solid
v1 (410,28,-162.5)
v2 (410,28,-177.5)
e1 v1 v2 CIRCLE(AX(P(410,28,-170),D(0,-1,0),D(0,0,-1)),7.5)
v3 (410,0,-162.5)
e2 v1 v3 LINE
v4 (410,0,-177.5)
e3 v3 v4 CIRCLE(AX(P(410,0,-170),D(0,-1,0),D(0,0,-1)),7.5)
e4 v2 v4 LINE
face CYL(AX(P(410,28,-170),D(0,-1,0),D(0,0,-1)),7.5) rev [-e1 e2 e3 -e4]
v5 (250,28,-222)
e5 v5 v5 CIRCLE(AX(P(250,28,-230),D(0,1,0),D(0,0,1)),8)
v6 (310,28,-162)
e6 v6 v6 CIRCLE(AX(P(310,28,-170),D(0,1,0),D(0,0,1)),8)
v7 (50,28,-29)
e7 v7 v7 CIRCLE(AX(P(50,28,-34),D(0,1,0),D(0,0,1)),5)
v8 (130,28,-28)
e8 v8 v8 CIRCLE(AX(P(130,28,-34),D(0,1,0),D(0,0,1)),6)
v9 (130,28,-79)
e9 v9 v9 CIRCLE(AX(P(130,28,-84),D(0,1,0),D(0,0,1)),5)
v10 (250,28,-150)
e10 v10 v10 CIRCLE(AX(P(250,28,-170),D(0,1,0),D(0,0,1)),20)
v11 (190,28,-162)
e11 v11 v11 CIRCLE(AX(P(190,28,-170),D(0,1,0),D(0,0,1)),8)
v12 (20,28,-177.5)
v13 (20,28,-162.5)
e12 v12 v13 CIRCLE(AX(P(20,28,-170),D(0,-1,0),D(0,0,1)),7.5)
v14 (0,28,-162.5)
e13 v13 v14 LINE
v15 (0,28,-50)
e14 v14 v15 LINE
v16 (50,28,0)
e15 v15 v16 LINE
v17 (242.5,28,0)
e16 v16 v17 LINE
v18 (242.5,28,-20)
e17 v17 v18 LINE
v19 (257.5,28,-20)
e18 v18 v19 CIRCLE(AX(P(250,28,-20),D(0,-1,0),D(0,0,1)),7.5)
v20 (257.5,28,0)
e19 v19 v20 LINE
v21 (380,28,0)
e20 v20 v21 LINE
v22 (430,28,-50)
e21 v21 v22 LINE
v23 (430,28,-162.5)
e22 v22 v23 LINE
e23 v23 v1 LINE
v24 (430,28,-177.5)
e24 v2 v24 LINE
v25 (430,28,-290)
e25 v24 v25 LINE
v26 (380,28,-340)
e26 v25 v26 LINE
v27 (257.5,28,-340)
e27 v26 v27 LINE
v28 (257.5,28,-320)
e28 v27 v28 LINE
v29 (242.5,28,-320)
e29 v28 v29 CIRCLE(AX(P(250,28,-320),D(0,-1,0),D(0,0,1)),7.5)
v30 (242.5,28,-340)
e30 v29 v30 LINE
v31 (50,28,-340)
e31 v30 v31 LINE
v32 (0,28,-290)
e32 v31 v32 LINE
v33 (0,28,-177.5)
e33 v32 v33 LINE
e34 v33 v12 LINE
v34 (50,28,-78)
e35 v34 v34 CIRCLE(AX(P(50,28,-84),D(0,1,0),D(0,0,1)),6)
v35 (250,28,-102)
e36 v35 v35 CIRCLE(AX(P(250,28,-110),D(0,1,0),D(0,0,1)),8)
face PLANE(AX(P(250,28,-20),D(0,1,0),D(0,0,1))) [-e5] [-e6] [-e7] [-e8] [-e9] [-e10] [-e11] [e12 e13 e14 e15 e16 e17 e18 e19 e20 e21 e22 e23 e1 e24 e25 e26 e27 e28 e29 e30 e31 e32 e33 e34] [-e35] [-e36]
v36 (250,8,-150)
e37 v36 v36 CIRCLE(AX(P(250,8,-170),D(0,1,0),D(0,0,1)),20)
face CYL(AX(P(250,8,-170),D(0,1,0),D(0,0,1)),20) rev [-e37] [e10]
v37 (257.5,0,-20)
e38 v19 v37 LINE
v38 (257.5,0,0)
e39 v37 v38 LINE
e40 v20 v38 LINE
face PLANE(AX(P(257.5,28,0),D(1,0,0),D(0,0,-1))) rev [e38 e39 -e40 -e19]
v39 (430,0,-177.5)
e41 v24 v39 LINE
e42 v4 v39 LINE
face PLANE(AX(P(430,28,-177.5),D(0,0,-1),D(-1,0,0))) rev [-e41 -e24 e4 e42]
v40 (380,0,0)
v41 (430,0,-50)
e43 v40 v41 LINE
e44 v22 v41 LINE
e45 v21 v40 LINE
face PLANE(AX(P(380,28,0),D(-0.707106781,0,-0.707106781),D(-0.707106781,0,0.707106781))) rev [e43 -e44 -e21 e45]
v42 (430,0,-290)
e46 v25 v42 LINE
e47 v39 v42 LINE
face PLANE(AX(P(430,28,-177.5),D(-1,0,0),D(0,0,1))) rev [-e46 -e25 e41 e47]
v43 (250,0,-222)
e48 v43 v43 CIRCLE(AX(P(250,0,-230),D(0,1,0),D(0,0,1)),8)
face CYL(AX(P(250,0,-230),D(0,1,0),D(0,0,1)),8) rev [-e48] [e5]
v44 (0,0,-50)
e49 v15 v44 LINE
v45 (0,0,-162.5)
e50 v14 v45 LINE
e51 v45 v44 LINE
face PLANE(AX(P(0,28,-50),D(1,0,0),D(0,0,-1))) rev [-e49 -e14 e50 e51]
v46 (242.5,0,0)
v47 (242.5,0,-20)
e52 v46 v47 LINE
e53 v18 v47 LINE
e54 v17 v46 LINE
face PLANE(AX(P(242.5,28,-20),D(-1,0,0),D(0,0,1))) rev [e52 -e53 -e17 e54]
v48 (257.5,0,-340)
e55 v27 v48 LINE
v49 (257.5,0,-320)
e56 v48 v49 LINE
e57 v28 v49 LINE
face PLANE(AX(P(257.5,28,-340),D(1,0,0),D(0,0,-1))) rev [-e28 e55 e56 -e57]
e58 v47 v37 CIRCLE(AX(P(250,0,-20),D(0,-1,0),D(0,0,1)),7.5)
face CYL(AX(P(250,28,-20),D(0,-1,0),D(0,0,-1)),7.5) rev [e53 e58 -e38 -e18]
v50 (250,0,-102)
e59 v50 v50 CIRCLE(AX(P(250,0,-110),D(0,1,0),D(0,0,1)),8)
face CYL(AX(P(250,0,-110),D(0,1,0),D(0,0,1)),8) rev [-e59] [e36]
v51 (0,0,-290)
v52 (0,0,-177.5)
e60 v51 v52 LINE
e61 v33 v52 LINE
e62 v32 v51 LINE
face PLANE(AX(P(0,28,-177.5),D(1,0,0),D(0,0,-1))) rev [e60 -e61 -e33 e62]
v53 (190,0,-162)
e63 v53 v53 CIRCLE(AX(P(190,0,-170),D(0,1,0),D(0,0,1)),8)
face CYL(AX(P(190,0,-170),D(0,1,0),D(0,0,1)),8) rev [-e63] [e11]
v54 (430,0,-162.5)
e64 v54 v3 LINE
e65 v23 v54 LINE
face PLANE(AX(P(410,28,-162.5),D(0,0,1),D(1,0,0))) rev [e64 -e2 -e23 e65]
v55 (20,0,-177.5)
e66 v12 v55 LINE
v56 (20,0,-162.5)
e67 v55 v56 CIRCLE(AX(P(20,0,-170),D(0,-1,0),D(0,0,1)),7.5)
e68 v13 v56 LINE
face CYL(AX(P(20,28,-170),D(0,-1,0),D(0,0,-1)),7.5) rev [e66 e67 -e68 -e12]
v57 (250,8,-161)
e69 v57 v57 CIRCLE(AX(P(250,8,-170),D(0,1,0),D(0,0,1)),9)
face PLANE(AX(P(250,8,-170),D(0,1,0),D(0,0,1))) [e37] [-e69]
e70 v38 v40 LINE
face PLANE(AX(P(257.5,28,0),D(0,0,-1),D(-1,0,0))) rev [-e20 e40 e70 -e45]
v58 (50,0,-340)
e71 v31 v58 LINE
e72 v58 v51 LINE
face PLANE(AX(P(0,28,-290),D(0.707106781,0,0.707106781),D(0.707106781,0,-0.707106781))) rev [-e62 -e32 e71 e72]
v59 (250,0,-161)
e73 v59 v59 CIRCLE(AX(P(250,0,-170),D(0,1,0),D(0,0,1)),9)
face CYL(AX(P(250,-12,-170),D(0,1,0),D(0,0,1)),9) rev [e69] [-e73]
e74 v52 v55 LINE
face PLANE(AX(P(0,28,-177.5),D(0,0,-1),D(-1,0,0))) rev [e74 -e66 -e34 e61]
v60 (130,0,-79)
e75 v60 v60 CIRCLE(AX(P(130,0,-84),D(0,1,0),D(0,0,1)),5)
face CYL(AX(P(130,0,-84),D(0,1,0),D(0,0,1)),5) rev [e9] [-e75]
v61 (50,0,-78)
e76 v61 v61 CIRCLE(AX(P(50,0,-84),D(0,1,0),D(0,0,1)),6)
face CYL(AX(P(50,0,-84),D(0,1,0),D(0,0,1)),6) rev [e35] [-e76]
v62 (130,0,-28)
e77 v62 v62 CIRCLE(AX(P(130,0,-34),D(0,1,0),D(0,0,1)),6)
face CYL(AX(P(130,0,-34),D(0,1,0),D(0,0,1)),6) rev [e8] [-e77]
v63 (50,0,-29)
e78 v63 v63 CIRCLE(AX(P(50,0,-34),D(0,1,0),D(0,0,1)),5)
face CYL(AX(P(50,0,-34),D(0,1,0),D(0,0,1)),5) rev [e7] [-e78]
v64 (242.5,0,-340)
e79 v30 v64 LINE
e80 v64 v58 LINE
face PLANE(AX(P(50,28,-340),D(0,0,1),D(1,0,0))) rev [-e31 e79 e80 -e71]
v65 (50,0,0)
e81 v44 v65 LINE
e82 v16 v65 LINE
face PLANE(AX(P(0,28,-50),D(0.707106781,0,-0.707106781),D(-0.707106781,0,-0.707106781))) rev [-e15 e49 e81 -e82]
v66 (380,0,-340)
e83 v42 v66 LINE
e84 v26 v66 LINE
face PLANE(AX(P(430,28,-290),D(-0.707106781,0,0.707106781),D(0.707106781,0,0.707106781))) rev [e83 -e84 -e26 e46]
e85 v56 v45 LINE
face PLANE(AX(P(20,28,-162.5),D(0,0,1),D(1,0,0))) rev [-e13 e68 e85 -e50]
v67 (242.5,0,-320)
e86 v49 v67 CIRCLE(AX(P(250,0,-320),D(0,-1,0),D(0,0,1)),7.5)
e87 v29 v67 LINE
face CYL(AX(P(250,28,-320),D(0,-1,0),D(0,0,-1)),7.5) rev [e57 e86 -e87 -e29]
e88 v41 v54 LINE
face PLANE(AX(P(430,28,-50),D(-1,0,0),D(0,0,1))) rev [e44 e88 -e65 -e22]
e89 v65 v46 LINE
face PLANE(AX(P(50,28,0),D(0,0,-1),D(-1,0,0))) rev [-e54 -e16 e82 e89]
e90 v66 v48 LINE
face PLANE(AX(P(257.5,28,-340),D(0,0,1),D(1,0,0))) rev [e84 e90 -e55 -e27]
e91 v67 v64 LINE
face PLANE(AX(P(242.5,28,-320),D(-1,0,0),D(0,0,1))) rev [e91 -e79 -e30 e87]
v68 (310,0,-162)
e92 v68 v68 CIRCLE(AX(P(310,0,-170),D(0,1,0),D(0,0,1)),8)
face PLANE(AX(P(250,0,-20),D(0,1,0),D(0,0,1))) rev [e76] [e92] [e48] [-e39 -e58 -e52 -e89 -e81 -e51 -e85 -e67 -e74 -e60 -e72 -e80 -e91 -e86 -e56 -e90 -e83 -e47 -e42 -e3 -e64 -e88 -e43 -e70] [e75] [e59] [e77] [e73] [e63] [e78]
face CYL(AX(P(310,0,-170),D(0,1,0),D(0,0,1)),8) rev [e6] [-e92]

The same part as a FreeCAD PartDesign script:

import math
import FreeCAD as App
import Part
import Sketcher
from FreeCAD import Vector
Q = App.Units.Quantity

doc = App.newDocument("Part")
params = doc.addObject("Spreadsheet::Sheet", "Params")
for row, (alias, value) in enumerate([
    ("sketch1_radius", "7.5 mm"),
    ("sketch1_width", "20 mm"),
    ("sketch1_width2", "192.5 mm"),
    ("sketch1_width3", "122.5 mm"),
    ("sketch1_height", "112.5 mm"),
    ("pad1_length", "28 mm"),
    ("sketch2_diameter", "16 mm"),
    ("pocket1_length", "28 mm"),
    ("sketch3_diameter", "12 mm"),
    ("sketch3_diameter2", "10 mm"),
    ("pocket2_length", "28 mm"),
    ("sketch4_diameter", "40 mm"),
    ("pocket3_length", "20 mm"),
    ("sketch5_diameter", "18 mm"),
    ("pocket4_length", "20 mm"),
], start=1):
    params.set(f"A{row}", alias)
    params.set(f"B{row}", "=" + value)
    params.setAlias(f"B{row}", alias)

body = doc.addObject("PartDesign::Body", "Body")

sketch1 = doc.addObject("Sketcher::SketchObject", "Sketch")
body.addObject(sketch1)
sketch1.AttachmentSupport = (doc.XZ_Plane, [""])
sketch1.MapMode = "FlatFace"
sketch1.addGeometry(Part.LineSegment(Vector(0, -50, 0), Vector(50, 0, 0)), False)
sketch1.addGeometry(Part.LineSegment(Vector(50, 0, 0), Vector(242, 0, 0)), False)
sketch1.addGeometry(Part.LineSegment(Vector(242, 0, 0), Vector(242, -20, 0)), False)
sketch1.addGeometry(Part.ArcOfCircle(Part.Circle(Vector(250, -20, 0), Vector(0, 0, 1), 8), math.radians(180), math.radians(360)), False)
sketch1.addGeometry(Part.LineSegment(Vector(258, -20, 0), Vector(258, 0, 0)), False)
sketch1.addGeometry(Part.LineSegment(Vector(258, 0, 0), Vector(380, 0, 0)), False)
sketch1.addGeometry(Part.LineSegment(Vector(380, 0, 0), Vector(430, -50, 0)), False)
sketch1.addGeometry(Part.LineSegment(Vector(430, -50, 0), Vector(430, -162, 0)), False)
sketch1.addGeometry(Part.LineSegment(Vector(430, -162, 0), Vector(410, -162, 0)), False)
sketch1.addGeometry(Part.ArcOfCircle(Part.Circle(Vector(410, -170, 0), Vector(0, 0, 1), 8), math.radians(90), math.radians(270)), False)
sketch1.addGeometry(Part.LineSegment(Vector(410, -178, 0), Vector(430, -178, 0)), False)
sketch1.addGeometry(Part.LineSegment(Vector(430, -178, 0), Vector(430, -290, 0)), False)
sketch1.addGeometry(Part.LineSegment(Vector(430, -290, 0), Vector(380, -340, 0)), False)
sketch1.addGeometry(Part.LineSegment(Vector(380, -340, 0), Vector(258, -340, 0)), False)
sketch1.addGeometry(Part.LineSegment(Vector(258, -340, 0), Vector(258, -320, 0)), False)
sketch1.addGeometry(Part.ArcOfCircle(Part.Circle(Vector(250, -320, 0), Vector(0, 0, 1), 8), math.radians(0), math.radians(180)), False)
sketch1.addGeometry(Part.LineSegment(Vector(242, -320, 0), Vector(242, -340, 0)), False)
sketch1.addGeometry(Part.LineSegment(Vector(242, -340, 0), Vector(50, -340, 0)), False)
sketch1.addGeometry(Part.LineSegment(Vector(50, -340, 0), Vector(0, -290, 0)), False)
sketch1.addGeometry(Part.LineSegment(Vector(0, -290, 0), Vector(0, -178, 0)), False)
sketch1.addGeometry(Part.LineSegment(Vector(0, -178, 0), Vector(20, -178, 0)), False)
sketch1.addGeometry(Part.ArcOfCircle(Part.Circle(Vector(20, -170, 0), Vector(0, 0, 1), 8), math.radians(-90), math.radians(90)), False)
sketch1.addGeometry(Part.LineSegment(Vector(20, -162, 0), Vector(0, -162, 0)), False)
sketch1.addGeometry(Part.LineSegment(Vector(0, -162, 0), Vector(0, -50, 0)), False)
sketch1.addConstraint(Sketcher.Constraint("Coincident", 0, 2, 1, 1))
sketch1.addConstraint(Sketcher.Constraint("Coincident", 1, 2, 2, 1))
sketch1.addConstraint(Sketcher.Constraint("Tangent", 2, 2, 3, 1))
sketch1.addConstraint(Sketcher.Constraint("Tangent", 3, 2, 4, 1))
sketch1.addConstraint(Sketcher.Constraint("Coincident", 4, 2, 5, 1))
sketch1.addConstraint(Sketcher.Constraint("Coincident", 5, 2, 6, 1))
sketch1.addConstraint(Sketcher.Constraint("Coincident", 6, 2, 7, 1))
sketch1.addConstraint(Sketcher.Constraint("Coincident", 7, 2, 8, 1))
sketch1.addConstraint(Sketcher.Constraint("Tangent", 8, 2, 9, 1))
sketch1.addConstraint(Sketcher.Constraint("Tangent", 9, 2, 10, 1))
sketch1.addConstraint(Sketcher.Constraint("Coincident", 10, 2, 11, 1))
sketch1.addConstraint(Sketcher.Constraint("Coincident", 11, 2, 12, 1))
sketch1.addConstraint(Sketcher.Constraint("Coincident", 12, 2, 13, 1))
sketch1.addConstraint(Sketcher.Constraint("Coincident", 13, 2, 14, 1))
sketch1.addConstraint(Sketcher.Constraint("Tangent", 14, 2, 15, 1))
sketch1.addConstraint(Sketcher.Constraint("Tangent", 15, 2, 16, 1))
sketch1.addConstraint(Sketcher.Constraint("Coincident", 16, 2, 17, 1))
sketch1.addConstraint(Sketcher.Constraint("Coincident", 17, 2, 18, 1))
sketch1.addConstraint(Sketcher.Constraint("Coincident", 18, 2, 19, 1))
sketch1.addConstraint(Sketcher.Constraint("Coincident", 19, 2, 20, 1))
sketch1.addConstraint(Sketcher.Constraint("Tangent", 20, 2, 21, 1))
sketch1.addConstraint(Sketcher.Constraint("Tangent", 21, 2, 22, 1))
sketch1.addConstraint(Sketcher.Constraint("Coincident", 22, 2, 23, 1))
sketch1.addConstraint(Sketcher.Constraint("Coincident", 23, 2, 0, 1))
sketch1.addConstraint(Sketcher.Constraint("Horizontal", 1))
sketch1.addConstraint(Sketcher.Constraint("Vertical", 2))
sketch1.addConstraint(Sketcher.Constraint("Vertical", 4))
sketch1.addConstraint(Sketcher.Constraint("Horizontal", 5))
sketch1.addConstraint(Sketcher.Constraint("Vertical", 7))
sketch1.addConstraint(Sketcher.Constraint("Horizontal", 8))
sketch1.addConstraint(Sketcher.Constraint("Horizontal", 10))
sketch1.addConstraint(Sketcher.Constraint("Vertical", 11))
sketch1.addConstraint(Sketcher.Constraint("Horizontal", 13))
sketch1.addConstraint(Sketcher.Constraint("Vertical", 14))
sketch1.addConstraint(Sketcher.Constraint("Vertical", 16))
sketch1.addConstraint(Sketcher.Constraint("Horizontal", 17))
sketch1.addConstraint(Sketcher.Constraint("Vertical", 19))
sketch1.addConstraint(Sketcher.Constraint("Horizontal", 20))
sketch1.addConstraint(Sketcher.Constraint("Horizontal", 22))
sketch1.addConstraint(Sketcher.Constraint("Vertical", 23))
sketch1.addConstraint(Sketcher.Constraint("Equal", 3, 9))
sketch1.addConstraint(Sketcher.Constraint("Equal", 9, 15))
sketch1.addConstraint(Sketcher.Constraint("Equal", 15, 21))
sketch1.addConstraint(Sketcher.Constraint("PointOnObject", 0, 2, -1))
sketch1.addConstraint(Sketcher.Constraint("PointOnObject", 4, 2, -1))
sketch1.addConstraint(Sketcher.Constraint("PointOnObject", 18, 2, -2))
sketch1.addConstraint(Sketcher.Constraint("PointOnObject", 22, 2, -2))
sketch1.addConstraint(Sketcher.Constraint("Perpendicular", 0, 6))
sketch1.addConstraint(Sketcher.Constraint("Perpendicular", 6, 12))
sketch1.addConstraint(Sketcher.Constraint("Perpendicular", 12, 18))
sketch1.addConstraint(Sketcher.Constraint("Horizontal", 9, 3, 21, 3))
sketch1.addConstraint(Sketcher.Constraint("Horizontal", 13, 2, 16, 2))
sketch1.addConstraint(Sketcher.Constraint("Horizontal", 11, 2, 18, 2))
sketch1.addConstraint(Sketcher.Constraint("Horizontal", 6, 2, 23, 2))
sketch1.addConstraint(Sketcher.Constraint("Vertical", 3, 3, 15, 3))
sketch1.addConstraint(Sketcher.Constraint("Vertical", 7, 2, 10, 2))
sketch1.addConstraint(Sketcher.Constraint("Vertical", 5, 2, 12, 2))
sketch1.addConstraint(Sketcher.Constraint("Vertical", 0, 2, 17, 2))
sketch1.addConstraint(Sketcher.Constraint("Equal", 10, 20))
sketch1.addConstraint(Sketcher.Constraint("Equal", 22, 2))
sketch1.addConstraint(Sketcher.Constraint("Equal", 7, 11))
sketch1.addConstraint(Sketcher.Constraint("Equal", 4, 14))
sketch1.addConstraint(Sketcher.Constraint("Radius", 3, Q("7.5 mm")))
sketch1.addConstraint(Sketcher.Constraint("DistanceX", 8, 2, 8, 1, Q("20 mm")))
sketch1.addConstraint(Sketcher.Constraint("DistanceX", 1, 1, 1, 2, Q("192.5 mm")))
sketch1.addConstraint(Sketcher.Constraint("DistanceX", 5, 1, 5, 2, Q("122.5 mm")))
sketch1.addConstraint(Sketcher.Constraint("DistanceY", 7, 2, 7, 1, Q("112.5 mm")))
sketch1.addConstraint(Sketcher.Constraint("DistanceX", -1, 1, 3, 3, Q("250 mm")))
sketch1.setExpression("Constraints[62]", "Params.sketch1_radius")
sketch1.setExpression("Constraints[63]", "Params.sketch1_width")
sketch1.setExpression("Constraints[64]", "Params.sketch1_width2")
sketch1.setExpression("Constraints[65]", "Params.sketch1_width3")
sketch1.setExpression("Constraints[66]", "Params.sketch1_height")
pad1 = doc.addObject("PartDesign::Pad", "Pad")
body.addObject(pad1)
pad1.Profile = sketch1
pad1.setExpression("Length", "Params.pad1_length")
pad1.Reversed = True

sketch2 = doc.addObject("Sketcher::SketchObject", "Sketch001")
body.addObject(sketch2)
sketch2.AttachmentSupport = (doc.XZ_Plane, [""])
sketch2.MapMode = "FlatFace"
sketch2.AttachmentOffset = App.Placement(Vector(0, 0, -28), App.Rotation())
sketch2.addGeometry(Part.Circle(Vector(250, -230, 0), Vector(0, 0, 1), 8), False)
sketch2.addGeometry(Part.Circle(Vector(190, -170, 0), Vector(0, 0, 1), 8), False)
sketch2.addGeometry(Part.Circle(Vector(250, -110, 0), Vector(0, 0, 1), 8), False)
sketch2.addGeometry(Part.Circle(Vector(310, -170, 0), Vector(0, 0, 1), 8), False)
sketch2.addConstraint(Sketcher.Constraint("Equal", 0, 1))
sketch2.addConstraint(Sketcher.Constraint("Equal", 1, 2))
sketch2.addConstraint(Sketcher.Constraint("Equal", 2, 3))
sketch2.addConstraint(Sketcher.Constraint("Horizontal", 1, 3, 3, 3))
sketch2.addConstraint(Sketcher.Constraint("Vertical", 0, 3, 2, 3))
sketch2.addConstraint(Sketcher.Constraint("Diameter", 0, Q("16 mm")))
sketch2.addConstraint(Sketcher.Constraint("DistanceX", -1, 1, 0, 3, Q("250 mm")))
sketch2.addConstraint(Sketcher.Constraint("DistanceY", 0, 3, -1, 1, Q("230 mm")))
sketch2.addConstraint(Sketcher.Constraint("DistanceX", -1, 1, 1, 3, Q("190 mm")))
sketch2.addConstraint(Sketcher.Constraint("DistanceY", 1, 3, -1, 1, Q("170 mm")))
sketch2.addConstraint(Sketcher.Constraint("DistanceY", 2, 3, -1, 1, Q("110 mm")))
sketch2.addConstraint(Sketcher.Constraint("DistanceX", -1, 1, 3, 3, Q("310 mm")))
sketch2.setExpression("Constraints[5]", "Params.sketch2_diameter")
pocket1 = doc.addObject("PartDesign::Pocket", "Pocket")
body.addObject(pocket1)
pocket1.Profile = sketch2
pocket1.setExpression("Length", "Params.pocket1_length")
pocket1.Reversed = True

sketch3 = doc.addObject("Sketcher::SketchObject", "Sketch002")
body.addObject(sketch3)
sketch3.AttachmentSupport = (doc.XZ_Plane, [""])
sketch3.MapMode = "FlatFace"
sketch3.AttachmentOffset = App.Placement(Vector(0, 0, -28), App.Rotation())
sketch3.addGeometry(Part.Circle(Vector(50, -84, 0), Vector(0, 0, 1), 6), False)
sketch3.addGeometry(Part.Circle(Vector(130, -84, 0), Vector(0, 0, 1), 5), False)
sketch3.addGeometry(Part.Circle(Vector(50, -34, 0), Vector(0, 0, 1), 5), False)
sketch3.addGeometry(Part.Circle(Vector(130, -34, 0), Vector(0, 0, 1), 6), False)
sketch3.addConstraint(Sketcher.Constraint("Equal", 1, 2))
sketch3.addConstraint(Sketcher.Constraint("Equal", 0, 3))
sketch3.addConstraint(Sketcher.Constraint("Horizontal", 0, 3, 1, 3))
sketch3.addConstraint(Sketcher.Constraint("Horizontal", 2, 3, 3, 3))
sketch3.addConstraint(Sketcher.Constraint("Vertical", 0, 3, 2, 3))
sketch3.addConstraint(Sketcher.Constraint("Vertical", 1, 3, 3, 3))
sketch3.addConstraint(Sketcher.Constraint("Diameter", 0, Q("12 mm")))
sketch3.addConstraint(Sketcher.Constraint("Diameter", 1, Q("10 mm")))
sketch3.addConstraint(Sketcher.Constraint("DistanceX", -1, 1, 0, 3, Q("50 mm")))
sketch3.addConstraint(Sketcher.Constraint("DistanceY", 0, 3, -1, 1, Q("84 mm")))
sketch3.addConstraint(Sketcher.Constraint("DistanceX", -1, 1, 1, 3, Q("130 mm")))
sketch3.addConstraint(Sketcher.Constraint("DistanceY", 2, 3, -1, 1, Q("34 mm")))
sketch3.setExpression("Constraints[6]", "Params.sketch3_diameter")
sketch3.setExpression("Constraints[7]", "Params.sketch3_diameter2")
pocket2 = doc.addObject("PartDesign::Pocket", "Pocket001")
body.addObject(pocket2)
pocket2.Profile = sketch3
pocket2.setExpression("Length", "Params.pocket2_length")
pocket2.Reversed = True

sketch4 = doc.addObject("Sketcher::SketchObject", "Sketch003")
body.addObject(sketch4)
sketch4.AttachmentSupport = (doc.XZ_Plane, [""])
sketch4.MapMode = "FlatFace"
sketch4.AttachmentOffset = App.Placement(Vector(0, 0, -28), App.Rotation())
sketch4.addGeometry(Part.Circle(Vector(250, -170, 0), Vector(0, 0, 1), 20), False)
sketch4.addConstraint(Sketcher.Constraint("Diameter", 0, Q("40 mm")))
sketch4.addConstraint(Sketcher.Constraint("DistanceX", -1, 1, 0, 3, Q("250 mm")))
sketch4.addConstraint(Sketcher.Constraint("DistanceY", 0, 3, -1, 1, Q("170 mm")))
sketch4.setExpression("Constraints[0]", "Params.sketch4_diameter")
pocket3 = doc.addObject("PartDesign::Pocket", "Pocket002")
body.addObject(pocket3)
pocket3.Profile = sketch4
pocket3.setExpression("Length", "Params.pocket3_length")
pocket3.Reversed = True

sketch5 = doc.addObject("Sketcher::SketchObject", "Sketch004")
body.addObject(sketch5)
sketch5.AttachmentSupport = (doc.XZ_Plane, [""])
sketch5.MapMode = "FlatFace"
sketch5.AttachmentOffset = App.Placement(Vector(0, 0, -8), App.Rotation())
sketch5.addGeometry(Part.Circle(Vector(250, -170, 0), Vector(0, 0, 1), 9), False)
sketch5.addConstraint(Sketcher.Constraint("Diameter", 0, Q("18 mm")))
sketch5.addConstraint(Sketcher.Constraint("DistanceX", -1, 1, 0, 3, Q("250 mm")))
sketch5.addConstraint(Sketcher.Constraint("DistanceY", 0, 3, -1, 1, Q("170 mm")))
sketch5.setExpression("Constraints[0]", "Params.sketch5_diameter")
pocket4 = doc.addObject("PartDesign::Pocket", "Pocket003")
body.addObject(pocket4)
pocket4.Profile = sketch5
pocket4.setExpression("Length", "Params.pocket4_length")
pocket4.Reversed = True

doc.recompute()
